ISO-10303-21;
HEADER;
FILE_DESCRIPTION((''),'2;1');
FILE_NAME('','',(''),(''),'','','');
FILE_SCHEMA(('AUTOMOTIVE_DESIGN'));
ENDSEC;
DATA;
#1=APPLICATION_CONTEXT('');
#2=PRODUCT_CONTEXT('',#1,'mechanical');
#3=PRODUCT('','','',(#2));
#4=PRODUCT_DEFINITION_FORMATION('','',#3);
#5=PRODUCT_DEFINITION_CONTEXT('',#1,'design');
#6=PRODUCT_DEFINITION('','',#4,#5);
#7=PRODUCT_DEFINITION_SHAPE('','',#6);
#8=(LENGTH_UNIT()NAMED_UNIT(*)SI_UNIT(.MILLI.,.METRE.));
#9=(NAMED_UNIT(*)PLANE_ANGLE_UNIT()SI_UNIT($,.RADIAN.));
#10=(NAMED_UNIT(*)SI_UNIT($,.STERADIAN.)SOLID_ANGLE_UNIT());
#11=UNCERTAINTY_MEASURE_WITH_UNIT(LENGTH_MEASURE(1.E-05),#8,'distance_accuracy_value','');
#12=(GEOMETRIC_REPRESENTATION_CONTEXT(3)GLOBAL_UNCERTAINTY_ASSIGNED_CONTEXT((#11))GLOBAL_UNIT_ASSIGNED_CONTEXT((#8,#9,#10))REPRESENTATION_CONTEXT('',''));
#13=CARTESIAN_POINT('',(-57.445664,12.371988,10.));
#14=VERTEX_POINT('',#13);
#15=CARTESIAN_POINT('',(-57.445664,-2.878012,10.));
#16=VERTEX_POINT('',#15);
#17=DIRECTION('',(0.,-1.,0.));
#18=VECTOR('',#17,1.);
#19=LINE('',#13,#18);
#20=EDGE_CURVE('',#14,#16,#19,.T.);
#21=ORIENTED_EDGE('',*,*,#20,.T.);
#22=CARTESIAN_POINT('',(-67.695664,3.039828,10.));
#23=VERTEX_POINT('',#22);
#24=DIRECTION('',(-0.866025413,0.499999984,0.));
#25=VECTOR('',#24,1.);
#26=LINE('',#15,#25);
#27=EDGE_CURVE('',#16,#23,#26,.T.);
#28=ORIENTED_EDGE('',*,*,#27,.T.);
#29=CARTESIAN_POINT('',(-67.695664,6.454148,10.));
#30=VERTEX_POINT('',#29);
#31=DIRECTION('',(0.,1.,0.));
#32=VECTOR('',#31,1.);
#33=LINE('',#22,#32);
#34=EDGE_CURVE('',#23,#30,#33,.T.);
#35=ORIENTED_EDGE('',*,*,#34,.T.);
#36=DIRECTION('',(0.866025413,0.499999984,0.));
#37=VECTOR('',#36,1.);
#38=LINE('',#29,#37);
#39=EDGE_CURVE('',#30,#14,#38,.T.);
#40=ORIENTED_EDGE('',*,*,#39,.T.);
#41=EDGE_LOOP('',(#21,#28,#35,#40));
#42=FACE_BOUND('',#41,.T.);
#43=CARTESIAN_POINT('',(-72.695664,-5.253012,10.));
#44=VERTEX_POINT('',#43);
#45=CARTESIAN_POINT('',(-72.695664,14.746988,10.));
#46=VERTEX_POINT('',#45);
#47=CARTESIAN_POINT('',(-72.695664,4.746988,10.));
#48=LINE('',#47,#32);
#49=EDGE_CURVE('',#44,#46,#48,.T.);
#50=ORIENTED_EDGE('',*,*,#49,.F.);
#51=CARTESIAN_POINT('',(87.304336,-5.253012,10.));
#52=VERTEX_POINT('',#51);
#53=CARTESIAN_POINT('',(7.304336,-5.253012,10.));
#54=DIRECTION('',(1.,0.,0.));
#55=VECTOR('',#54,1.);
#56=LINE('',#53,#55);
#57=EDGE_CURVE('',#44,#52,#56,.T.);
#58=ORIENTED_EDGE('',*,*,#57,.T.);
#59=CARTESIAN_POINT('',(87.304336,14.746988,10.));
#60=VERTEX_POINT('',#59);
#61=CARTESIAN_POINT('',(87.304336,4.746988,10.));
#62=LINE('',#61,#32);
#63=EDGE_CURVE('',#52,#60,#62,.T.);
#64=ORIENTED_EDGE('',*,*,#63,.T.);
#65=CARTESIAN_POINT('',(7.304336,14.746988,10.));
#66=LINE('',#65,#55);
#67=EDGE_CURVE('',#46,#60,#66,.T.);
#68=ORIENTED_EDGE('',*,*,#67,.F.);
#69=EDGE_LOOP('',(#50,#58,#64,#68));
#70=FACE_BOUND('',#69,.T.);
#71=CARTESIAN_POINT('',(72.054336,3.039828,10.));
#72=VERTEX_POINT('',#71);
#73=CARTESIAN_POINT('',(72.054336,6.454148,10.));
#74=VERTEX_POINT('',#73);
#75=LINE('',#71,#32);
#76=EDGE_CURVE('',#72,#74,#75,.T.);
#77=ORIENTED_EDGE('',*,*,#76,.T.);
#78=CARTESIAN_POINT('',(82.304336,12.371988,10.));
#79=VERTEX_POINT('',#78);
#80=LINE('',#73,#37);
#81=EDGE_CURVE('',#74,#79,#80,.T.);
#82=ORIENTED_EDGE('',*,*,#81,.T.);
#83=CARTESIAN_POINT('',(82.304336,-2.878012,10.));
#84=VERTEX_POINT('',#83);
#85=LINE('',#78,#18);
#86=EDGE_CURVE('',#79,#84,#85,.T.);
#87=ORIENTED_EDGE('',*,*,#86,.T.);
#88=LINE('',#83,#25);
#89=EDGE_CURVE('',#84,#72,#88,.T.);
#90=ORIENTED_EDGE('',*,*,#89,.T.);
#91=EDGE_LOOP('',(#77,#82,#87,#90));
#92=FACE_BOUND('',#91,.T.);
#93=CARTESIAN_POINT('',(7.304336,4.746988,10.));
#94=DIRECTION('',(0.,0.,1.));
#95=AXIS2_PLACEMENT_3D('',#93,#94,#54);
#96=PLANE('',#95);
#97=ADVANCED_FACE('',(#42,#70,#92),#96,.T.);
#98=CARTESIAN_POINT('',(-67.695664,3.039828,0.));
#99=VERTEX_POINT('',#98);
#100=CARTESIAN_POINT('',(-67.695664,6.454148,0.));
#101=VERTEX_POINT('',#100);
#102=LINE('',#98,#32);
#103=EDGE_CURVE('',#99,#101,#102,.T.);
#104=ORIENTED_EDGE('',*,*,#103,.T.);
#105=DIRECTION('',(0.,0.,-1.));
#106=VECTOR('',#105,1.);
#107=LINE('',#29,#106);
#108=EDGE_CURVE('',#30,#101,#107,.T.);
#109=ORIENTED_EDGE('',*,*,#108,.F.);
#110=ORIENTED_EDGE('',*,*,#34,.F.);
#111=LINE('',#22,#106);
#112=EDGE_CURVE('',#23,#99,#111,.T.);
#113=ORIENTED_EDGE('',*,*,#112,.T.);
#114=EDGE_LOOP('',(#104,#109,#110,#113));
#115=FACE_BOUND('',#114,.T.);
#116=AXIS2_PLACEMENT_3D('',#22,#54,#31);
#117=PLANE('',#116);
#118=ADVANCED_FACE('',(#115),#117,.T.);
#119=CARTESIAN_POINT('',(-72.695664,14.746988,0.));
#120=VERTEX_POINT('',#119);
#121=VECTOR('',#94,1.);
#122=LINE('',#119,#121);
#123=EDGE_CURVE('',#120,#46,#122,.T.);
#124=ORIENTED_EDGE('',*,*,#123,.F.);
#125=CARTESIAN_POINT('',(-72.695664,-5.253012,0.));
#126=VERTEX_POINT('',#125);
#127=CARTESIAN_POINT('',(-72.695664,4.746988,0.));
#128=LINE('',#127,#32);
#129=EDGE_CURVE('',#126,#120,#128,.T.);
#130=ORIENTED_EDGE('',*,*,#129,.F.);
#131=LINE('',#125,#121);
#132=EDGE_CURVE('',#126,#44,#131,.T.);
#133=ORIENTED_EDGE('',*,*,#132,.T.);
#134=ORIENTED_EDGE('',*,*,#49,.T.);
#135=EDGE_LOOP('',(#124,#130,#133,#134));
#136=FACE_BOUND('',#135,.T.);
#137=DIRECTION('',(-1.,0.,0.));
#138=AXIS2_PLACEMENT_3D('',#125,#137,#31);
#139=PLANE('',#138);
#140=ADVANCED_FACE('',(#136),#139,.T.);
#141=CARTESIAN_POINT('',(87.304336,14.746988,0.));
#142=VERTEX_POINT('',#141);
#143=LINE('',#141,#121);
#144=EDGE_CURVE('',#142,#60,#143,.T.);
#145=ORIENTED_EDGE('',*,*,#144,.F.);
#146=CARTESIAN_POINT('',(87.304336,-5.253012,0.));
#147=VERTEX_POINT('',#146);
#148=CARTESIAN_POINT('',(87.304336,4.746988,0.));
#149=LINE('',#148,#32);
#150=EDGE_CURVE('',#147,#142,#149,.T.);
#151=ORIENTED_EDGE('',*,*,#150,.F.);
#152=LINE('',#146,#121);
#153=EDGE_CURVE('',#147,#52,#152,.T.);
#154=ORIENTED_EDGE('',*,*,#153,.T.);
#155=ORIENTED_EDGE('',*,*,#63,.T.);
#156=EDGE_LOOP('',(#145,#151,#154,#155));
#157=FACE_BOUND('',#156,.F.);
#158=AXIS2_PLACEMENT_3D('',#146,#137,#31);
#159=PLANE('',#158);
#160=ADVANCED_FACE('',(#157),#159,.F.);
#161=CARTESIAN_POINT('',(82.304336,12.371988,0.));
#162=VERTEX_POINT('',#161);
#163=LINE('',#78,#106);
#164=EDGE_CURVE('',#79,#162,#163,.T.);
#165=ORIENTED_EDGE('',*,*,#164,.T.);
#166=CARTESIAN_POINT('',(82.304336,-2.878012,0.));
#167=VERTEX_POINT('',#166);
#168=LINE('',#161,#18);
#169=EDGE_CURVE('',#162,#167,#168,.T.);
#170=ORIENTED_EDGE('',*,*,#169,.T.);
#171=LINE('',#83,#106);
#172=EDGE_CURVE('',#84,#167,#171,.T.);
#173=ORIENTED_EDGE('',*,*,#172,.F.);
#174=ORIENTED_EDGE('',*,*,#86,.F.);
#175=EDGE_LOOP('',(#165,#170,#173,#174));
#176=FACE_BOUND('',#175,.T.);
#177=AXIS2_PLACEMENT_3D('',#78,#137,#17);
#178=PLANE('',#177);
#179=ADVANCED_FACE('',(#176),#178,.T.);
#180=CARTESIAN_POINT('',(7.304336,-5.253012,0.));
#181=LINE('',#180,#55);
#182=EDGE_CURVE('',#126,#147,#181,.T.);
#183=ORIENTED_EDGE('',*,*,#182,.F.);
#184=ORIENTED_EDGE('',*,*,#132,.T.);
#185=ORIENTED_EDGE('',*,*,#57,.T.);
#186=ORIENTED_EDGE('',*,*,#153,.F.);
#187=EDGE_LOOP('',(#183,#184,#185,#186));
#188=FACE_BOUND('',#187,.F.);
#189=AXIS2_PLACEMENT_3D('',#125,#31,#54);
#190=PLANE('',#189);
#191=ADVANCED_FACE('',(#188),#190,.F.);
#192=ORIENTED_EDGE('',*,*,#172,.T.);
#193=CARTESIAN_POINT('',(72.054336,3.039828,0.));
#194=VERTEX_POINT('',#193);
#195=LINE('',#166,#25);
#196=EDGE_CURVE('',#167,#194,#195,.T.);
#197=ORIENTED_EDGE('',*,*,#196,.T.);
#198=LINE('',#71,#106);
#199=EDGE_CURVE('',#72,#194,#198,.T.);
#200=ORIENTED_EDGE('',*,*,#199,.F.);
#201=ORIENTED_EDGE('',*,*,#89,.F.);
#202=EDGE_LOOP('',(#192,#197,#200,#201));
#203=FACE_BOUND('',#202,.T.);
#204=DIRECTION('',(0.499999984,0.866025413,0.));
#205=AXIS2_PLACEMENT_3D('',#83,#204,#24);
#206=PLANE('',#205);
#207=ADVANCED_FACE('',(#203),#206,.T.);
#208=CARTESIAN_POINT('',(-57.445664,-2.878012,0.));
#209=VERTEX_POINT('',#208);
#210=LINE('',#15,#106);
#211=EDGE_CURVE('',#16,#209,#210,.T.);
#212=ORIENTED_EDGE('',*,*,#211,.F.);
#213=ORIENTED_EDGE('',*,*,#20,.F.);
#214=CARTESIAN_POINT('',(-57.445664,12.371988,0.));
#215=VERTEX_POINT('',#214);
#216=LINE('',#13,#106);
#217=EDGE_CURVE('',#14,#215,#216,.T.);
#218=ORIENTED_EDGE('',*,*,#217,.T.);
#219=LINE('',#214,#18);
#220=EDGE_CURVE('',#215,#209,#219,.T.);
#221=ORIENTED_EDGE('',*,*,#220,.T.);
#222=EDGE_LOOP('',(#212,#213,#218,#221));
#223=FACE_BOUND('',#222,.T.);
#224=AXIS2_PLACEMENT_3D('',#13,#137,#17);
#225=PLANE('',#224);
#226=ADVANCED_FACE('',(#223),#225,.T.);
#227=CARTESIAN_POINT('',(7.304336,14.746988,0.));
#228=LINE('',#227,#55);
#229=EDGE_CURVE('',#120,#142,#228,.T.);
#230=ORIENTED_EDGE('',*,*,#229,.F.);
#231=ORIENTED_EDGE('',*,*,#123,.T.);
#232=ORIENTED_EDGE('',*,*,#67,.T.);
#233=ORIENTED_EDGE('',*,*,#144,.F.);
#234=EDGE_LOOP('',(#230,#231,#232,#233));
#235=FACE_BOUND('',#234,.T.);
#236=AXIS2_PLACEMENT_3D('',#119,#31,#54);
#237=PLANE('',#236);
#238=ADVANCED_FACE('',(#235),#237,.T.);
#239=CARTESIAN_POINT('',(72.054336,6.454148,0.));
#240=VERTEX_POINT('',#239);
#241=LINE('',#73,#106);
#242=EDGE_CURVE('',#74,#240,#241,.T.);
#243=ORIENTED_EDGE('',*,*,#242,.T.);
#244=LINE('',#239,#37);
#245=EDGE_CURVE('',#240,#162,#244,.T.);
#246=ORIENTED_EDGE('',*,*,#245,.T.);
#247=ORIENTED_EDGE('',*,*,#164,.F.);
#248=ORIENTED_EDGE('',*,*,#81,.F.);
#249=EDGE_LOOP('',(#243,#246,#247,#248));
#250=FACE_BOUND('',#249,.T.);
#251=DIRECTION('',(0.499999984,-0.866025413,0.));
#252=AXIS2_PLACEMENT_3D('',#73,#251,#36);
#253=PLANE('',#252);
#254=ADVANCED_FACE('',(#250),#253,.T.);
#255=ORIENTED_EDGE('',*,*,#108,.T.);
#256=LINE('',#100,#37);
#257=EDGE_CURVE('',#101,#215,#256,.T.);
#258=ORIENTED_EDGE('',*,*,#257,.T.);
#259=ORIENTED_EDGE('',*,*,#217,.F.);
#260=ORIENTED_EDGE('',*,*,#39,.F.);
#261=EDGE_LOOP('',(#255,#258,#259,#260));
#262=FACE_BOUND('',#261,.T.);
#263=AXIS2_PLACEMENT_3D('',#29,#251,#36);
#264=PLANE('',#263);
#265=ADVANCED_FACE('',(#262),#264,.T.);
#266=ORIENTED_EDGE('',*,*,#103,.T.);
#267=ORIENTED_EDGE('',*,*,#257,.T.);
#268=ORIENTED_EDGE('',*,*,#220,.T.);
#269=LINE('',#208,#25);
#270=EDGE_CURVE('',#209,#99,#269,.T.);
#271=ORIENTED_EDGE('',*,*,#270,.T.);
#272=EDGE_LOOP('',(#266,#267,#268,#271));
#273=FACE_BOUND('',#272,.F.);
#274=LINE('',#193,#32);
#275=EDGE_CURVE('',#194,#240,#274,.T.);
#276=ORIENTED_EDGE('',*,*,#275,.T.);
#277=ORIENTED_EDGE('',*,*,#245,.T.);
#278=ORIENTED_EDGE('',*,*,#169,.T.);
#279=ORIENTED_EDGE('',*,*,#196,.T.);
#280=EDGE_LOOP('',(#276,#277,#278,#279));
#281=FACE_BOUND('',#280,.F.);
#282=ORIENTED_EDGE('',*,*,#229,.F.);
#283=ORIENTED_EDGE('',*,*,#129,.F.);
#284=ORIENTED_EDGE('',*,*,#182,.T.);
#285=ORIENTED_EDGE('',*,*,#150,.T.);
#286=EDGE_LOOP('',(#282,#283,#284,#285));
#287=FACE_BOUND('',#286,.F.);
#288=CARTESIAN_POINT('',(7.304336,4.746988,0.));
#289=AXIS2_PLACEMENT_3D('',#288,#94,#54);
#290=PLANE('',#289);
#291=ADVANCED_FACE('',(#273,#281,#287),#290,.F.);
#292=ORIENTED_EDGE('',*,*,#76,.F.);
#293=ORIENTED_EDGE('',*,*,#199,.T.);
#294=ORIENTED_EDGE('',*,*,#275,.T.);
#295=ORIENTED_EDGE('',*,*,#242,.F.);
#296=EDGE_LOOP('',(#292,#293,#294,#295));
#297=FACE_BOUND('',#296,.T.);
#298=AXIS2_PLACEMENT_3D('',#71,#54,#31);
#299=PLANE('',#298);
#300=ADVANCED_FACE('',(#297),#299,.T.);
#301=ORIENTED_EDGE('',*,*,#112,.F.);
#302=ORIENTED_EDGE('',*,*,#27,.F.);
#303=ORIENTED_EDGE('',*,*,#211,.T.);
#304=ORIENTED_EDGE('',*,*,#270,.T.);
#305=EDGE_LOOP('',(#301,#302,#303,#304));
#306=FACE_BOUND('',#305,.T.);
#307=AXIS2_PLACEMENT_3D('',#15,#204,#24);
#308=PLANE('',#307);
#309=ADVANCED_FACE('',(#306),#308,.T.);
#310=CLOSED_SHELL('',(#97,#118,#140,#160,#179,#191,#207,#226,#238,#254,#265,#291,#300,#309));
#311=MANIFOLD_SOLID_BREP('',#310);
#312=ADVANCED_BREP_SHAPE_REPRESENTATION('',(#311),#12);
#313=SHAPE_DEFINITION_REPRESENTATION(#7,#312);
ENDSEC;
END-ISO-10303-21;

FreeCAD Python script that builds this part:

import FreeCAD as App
import Part
import Sketcher
Q = App.Units.Quantity

doc = App.newDocument("Part")
body = doc.addObject("PartDesign::Body", "Body")

# Sketch on XY plane
sketch1 = body.newObject("Sketcher::SketchObject", "Sketch")
sketch1.AttachmentSupport = (doc.getObject("XY_Plane"), [""])
sketch1.MapMode = "FlatFace"
sketch1.addGeometry([
    Part.LineSegment(App.Vector(-72.695664, 14.746988, 0), App.Vector(-72.695664, -5.253012, 0)),
    Part.LineSegment(App.Vector(-72.695664, -5.253012, 0), App.Vector(87.304336, -5.253012, 0)),
    Part.LineSegment(App.Vector(87.304336, -5.253012, 0), App.Vector(87.304336, 14.746988, 0)),
    Part.LineSegment(App.Vector(87.304336, 14.746988, 0), App.Vector(-72.695664, 14.746988, 0)),
], False)
sketch1.addConstraint([
    Sketcher.Constraint("Coincident", 0, 2, 1, 1),
    Sketcher.Constraint("Coincident", 1, 2, 2, 1),
    Sketcher.Constraint("Coincident", 2, 2, 3, 1),
    Sketcher.Constraint("Coincident", 3, 2, 0, 1),
    Sketcher.Constraint("Vertical", 0),
    Sketcher.Constraint("Horizontal", 1),
    Sketcher.Constraint("Vertical", 2),
    Sketcher.Constraint("Horizontal", 3),
    Sketcher.Constraint("DistanceX", 1, 1, 1, 2, Q("160 mm")),
    Sketcher.Constraint("DistanceY", 0, 2, 0, 1, Q("20 mm")),
    Sketcher.Constraint("DistanceX", 0, 2, -1, 1, Q("72.695664 mm")),
    Sketcher.Constraint("DistanceY", 0, 2, -1, 1, Q("5.253012 mm")),
])
pad1 = body.newObject("PartDesign::Pad", "Pad")
pad1.Profile = sketch1
pad1.Length = 10

# Sketch on XY plane
sketch2 = body.newObject("Sketcher::SketchObject", "Sketch001")
sketch2.AttachmentSupport = (doc.getObject("XY_Plane"), [""])
sketch2.MapMode = "FlatFace"
sketch2.AttachmentOffset = App.Placement(App.Vector(0, 0, 10), App.Rotation())
sketch2.addGeometry([
    Part.LineSegment(App.Vector(-67.695664, 6.454148, 0), App.Vector(-67.695664, 3.039828, 0)),  # 0
    Part.LineSegment(App.Vector(-67.695664, 3.039828, 0), App.Vector(-57.445664, -2.878012, 0)),  # 1
    Part.LineSegment(App.Vector(-57.445664, -2.878012, 0), App.Vector(-57.445664, 12.371988, 0)),  # 2
    Part.LineSegment(App.Vector(-57.445664, 12.371988, 0), App.Vector(-67.695664, 6.454148, 0)),  # 3
    Part.LineSegment(App.Vector(72.054336, 6.454148, 0), App.Vector(72.054336, 3.039828, 0)),  # 4
    Part.LineSegment(App.Vector(72.054336, 3.039828, 0), App.Vector(82.304336, -2.878012, 0)),  # 5
    Part.LineSegment(App.Vector(82.304336, -2.878012, 0), App.Vector(82.304336, 12.371988, 0)),  # 6
    Part.LineSegment(App.Vector(82.304336, 12.371988, 0), App.Vector(72.054336, 6.454148, 0)),  # 7
], False)
sketch2.addConstraint([
    Sketcher.Constraint("Coincident", 0, 2, 1, 1),
    Sketcher.Constraint("Coincident", 1, 2, 2, 1),
    Sketcher.Constraint("Coincident", 2, 2, 3, 1),
    Sketcher.Constraint("Coincident", 3, 2, 0, 1),
    Sketcher.Constraint("Coincident", 4, 2, 5, 1),
    Sketcher.Constraint("Coincident", 5, 2, 6, 1),
    Sketcher.Constraint("Coincident", 6, 2, 7, 1),
    Sketcher.Constraint("Coincident", 7, 2, 4, 1),
    Sketcher.Constraint("Vertical", 0),
    Sketcher.Constraint("Vertical", 2),
    Sketcher.Constraint("Vertical", 4),
    Sketcher.Constraint("Vertical", 6),
    Sketcher.Constraint("Parallel", 1, 5),
    Sketcher.Constraint("Parallel", 3, 7),
    Sketcher.Constraint("Horizontal", 0, 2, 4, 2),
    Sketcher.Constraint("Horizontal", 1, 2, 5, 2),
    Sketcher.Constraint("Horizontal", 2, 2, 6, 2),
    Sketcher.Constraint("Equal", 1, 3),
    Sketcher.Constraint("Angle", 1, Q("-29.999999 deg")),
    Sketcher.Constraint("DistanceX", 0, 2, 5, 2, Q("150 mm")),
    Sketcher.Constraint("DistanceY", 2, 1, 2, 2, Q("15.25 mm")),
    Sketcher.Constraint("DistanceX", 1, 2, 4, 2, Q("129.5 mm")),
    Sketcher.Constraint("DistanceY", -1, 1, 0, 2, Q("3.039828 mm")),
    Sketcher.Constraint("DistanceX", 0, 2, -1, 1, Q("67.695664 mm")),
])
pocket1 = body.newObject("PartDesign::Pocket", "Pocket")
pocket1.Profile = sketch2
pocket1.Length = 10

doc.recompute()
